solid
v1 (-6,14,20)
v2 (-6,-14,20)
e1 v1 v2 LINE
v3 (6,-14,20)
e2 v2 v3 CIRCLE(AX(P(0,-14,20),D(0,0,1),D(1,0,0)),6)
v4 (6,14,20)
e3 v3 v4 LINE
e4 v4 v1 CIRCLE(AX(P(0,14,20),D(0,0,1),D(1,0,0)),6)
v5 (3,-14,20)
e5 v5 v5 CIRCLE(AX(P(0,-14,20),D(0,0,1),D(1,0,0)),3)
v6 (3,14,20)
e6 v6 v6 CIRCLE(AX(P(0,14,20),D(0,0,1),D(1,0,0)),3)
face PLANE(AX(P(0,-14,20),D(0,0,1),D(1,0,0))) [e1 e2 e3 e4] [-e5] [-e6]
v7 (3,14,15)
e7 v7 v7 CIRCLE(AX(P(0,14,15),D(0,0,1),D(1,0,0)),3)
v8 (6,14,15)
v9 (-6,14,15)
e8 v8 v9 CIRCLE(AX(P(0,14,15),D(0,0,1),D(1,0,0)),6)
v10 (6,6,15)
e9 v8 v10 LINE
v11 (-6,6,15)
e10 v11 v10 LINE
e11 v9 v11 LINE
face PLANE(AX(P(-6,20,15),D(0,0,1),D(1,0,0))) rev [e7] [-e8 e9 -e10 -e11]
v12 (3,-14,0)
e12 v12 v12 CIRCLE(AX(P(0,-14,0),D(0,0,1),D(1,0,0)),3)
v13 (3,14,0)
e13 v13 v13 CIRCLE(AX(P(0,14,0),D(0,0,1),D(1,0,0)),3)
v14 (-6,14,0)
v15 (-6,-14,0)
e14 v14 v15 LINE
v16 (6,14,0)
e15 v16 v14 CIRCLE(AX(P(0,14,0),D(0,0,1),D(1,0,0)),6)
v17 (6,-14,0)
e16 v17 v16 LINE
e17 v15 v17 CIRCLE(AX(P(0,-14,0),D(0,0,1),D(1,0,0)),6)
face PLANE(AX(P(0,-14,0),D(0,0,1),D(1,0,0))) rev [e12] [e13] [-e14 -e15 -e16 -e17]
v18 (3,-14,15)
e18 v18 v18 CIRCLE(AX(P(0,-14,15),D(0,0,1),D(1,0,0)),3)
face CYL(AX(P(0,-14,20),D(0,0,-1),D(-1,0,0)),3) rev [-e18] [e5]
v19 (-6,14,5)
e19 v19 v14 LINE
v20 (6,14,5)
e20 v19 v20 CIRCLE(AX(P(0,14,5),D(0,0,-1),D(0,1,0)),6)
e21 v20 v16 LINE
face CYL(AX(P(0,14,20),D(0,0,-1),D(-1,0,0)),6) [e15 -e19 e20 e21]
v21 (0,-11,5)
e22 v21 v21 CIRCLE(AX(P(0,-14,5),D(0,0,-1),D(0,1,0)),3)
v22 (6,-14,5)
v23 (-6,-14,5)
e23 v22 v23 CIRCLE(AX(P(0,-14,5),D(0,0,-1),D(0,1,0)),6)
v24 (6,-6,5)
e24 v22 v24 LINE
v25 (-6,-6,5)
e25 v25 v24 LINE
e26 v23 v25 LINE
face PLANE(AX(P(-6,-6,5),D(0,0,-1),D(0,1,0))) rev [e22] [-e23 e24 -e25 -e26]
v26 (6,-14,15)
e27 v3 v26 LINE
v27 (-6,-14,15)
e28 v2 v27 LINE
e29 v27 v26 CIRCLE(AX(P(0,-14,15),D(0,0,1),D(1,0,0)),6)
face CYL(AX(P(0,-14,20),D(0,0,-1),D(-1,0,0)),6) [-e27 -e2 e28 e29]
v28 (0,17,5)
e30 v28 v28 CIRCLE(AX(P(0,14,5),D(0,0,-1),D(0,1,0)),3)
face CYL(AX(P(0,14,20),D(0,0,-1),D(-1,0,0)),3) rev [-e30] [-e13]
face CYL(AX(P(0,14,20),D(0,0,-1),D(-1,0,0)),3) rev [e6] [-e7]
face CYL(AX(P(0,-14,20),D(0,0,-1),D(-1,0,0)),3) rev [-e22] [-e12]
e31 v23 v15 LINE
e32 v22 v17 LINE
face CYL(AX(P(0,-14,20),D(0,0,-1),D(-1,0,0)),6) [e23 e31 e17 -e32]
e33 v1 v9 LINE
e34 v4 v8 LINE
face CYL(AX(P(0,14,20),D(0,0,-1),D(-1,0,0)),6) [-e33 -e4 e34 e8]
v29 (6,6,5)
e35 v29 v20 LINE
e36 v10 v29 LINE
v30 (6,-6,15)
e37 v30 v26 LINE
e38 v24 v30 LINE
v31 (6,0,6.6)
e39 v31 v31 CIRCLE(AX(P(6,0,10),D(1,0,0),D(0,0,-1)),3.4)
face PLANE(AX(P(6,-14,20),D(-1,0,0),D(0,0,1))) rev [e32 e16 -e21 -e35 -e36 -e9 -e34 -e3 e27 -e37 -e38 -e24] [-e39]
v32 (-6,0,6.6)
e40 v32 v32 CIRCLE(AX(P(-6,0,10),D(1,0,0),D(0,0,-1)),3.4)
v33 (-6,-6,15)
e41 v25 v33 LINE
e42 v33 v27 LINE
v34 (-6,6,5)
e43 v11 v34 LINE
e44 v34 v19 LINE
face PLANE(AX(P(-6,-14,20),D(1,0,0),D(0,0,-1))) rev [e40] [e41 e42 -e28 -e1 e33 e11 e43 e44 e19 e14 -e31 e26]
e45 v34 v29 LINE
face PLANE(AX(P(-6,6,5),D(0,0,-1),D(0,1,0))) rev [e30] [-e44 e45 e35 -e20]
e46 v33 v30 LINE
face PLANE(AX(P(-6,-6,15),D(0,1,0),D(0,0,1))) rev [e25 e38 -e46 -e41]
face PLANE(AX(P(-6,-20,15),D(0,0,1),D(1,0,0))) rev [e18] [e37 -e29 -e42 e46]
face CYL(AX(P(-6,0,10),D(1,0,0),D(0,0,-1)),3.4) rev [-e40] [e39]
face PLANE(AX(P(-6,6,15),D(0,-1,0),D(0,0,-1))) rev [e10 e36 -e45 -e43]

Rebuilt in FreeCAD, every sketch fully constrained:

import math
import FreeCAD as App
import Part
import Sketcher

V = App.Vector
Q = App.Units.Quantity


def add_polygon(sketch, points):
    """Adds a closed chain of lines whose ends are joined by coincident constraints."""
    first, n = sketch.GeometryCount, len(points)
    for a, b in zip(points, points[1:] + points[:1]):
        sketch.addGeometry(Part.LineSegment(App.Vector(*a, 0), App.Vector(*b, 0)), False)
    for i in range(n):
        sketch.addConstraint(Sketcher.Constraint("Coincident", first + i, 2, first + (i + 1) % n, 1))

doc = App.newDocument("Part")
params = doc.addObject("Spreadsheet::Sheet", "Params")
for row, (alias, value) in enumerate([
    ("sketch1_diameter", "6 mm"),
    ("sketch1_radius", "6 mm"),
    ("sketch1_height", "28 mm"),
    ("pad1_length", "20 mm"),
    ("sketch2_diameter", "6.8 mm"),
    ("sketch2_width", "14 mm"),
    ("sketch2_height", "10 mm"),
], start=1):
    params.set(f"A{row}", alias)
    params.set(f"B{row}", "=" + value)
    params.setAlias(f"B{row}", alias)

body = doc.addObject("PartDesign::Body", "Body")

# Sketch on XY plane
sketch1 = body.newObject("Sketcher::SketchObject", "Sketch")
sketch1.AttachmentSupport = (doc.getObject("XY_Plane"), [""])
sketch1.MapMode = "FlatFace"
sketch1.addGeometry([
    Part.LineSegment(V(-6, 14, 0), V(-6, -14, 0)),  # 0
    Part.ArcOfCircle(Part.Circle(V(0, -14, 0), V(0, 0, 1), 6), math.radians(180), math.radians(360)),  # 1
    Part.LineSegment(V(6, -14, 0), V(6, 14, 0)),  # 2
    Part.ArcOfCircle(Part.Circle(V(0, 14, 0), V(0, 0, 1), 6), math.radians(0), math.radians(180)),  # 3
    Part.Circle(V(0, -14, 0), V(0, 0, 1), 3),  # 4
    Part.Circle(V(0, 14, 0), V(0, 0, 1), 3),  # 5
], False)
sketch1.addConstraint([
    Sketcher.Constraint("Tangent", 0, 2, 1, 1),
    Sketcher.Constraint("Tangent", 1, 2, 2, 1),
    Sketcher.Constraint("Tangent", 2, 2, 3, 1),
    Sketcher.Constraint("Tangent", 3, 2, 0, 1),
    Sketcher.Constraint("Vertical", 0),
    Sketcher.Constraint("Vertical", 2),
    Sketcher.Constraint("Coincident", 4, 3, 1, 3),
    Sketcher.Constraint("Coincident", 5, 3, 3, 3),
    Sketcher.Constraint("Equal", 4, 5),
    Sketcher.Constraint("Symmetric", 1, 3, 3, 3, -1, 1),
    Sketcher.Constraint("Diameter", 4, Q("6 mm")),
    Sketcher.Constraint("Radius", 1, Q("6 mm")),
    Sketcher.Constraint("DistanceY", 0, 2, 0, 1, Q("28 mm")),
])
sketch1.setExpression("Constraints[10]", "Params.sketch1_diameter")
sketch1.setExpression("Constraints[11]", "Params.sketch1_radius")
sketch1.setExpression("Constraints[12]", "Params.sketch1_height")
pad1 = body.newObject("PartDesign::Pad", "Pad")
pad1.Profile = sketch1
pad1.setExpression("Length", "Params.pad1_length")

# Sketch on YZ plane
sketch2 = body.newObject("Sketcher::SketchObject", "Sketch001")
sketch2.AttachmentSupport = (doc.getObject("YZ_Plane"), [""])
sketch2.MapMode = "FlatFace"
sketch2.addGeometry(Part.Circle(V(0, 10, 0), V(0, 0, 1), 3.4), False)  # 0
add_polygon(sketch2, [(-6, 15), (-20, 15), (-20, 5), (-6, 5)])  # lines 1-4
add_polygon(sketch2, [(20, 15), (6, 15), (6, 5), (20, 5)])  # lines 5-8
sketch2.addConstraint([
    Sketcher.Constraint("Horizontal", 1),
    Sketcher.Constraint("Vertical", 2),
    Sketcher.Constraint("Horizontal", 3),
    Sketcher.Constraint("Vertical", 4),
    Sketcher.Constraint("Horizontal", 5),
    Sketcher.Constraint("Vertical", 6),
    Sketcher.Constraint("Horizontal", 7),
    Sketcher.Constraint("Vertical", 8),
    Sketcher.Constraint("Symmetric", 4, 2, 5, 2, -2),
    Sketcher.Constraint("Symmetric", 2, 2, 7, 2, -2),
    Sketcher.Constraint("PointOnObject", 0, 3, -2),
    Sketcher.Constraint("Diameter", 0, Q("6.8 mm")),
    Sketcher.Constraint("DistanceX", 1, 2, 1, 1, Q("14 mm")),
    Sketcher.Constraint("DistanceY", 2, 2, 2, 1, Q("10 mm")),
    Sketcher.Constraint("DistanceY", -1, 1, 0, 3, Q("10 mm")),
    Sketcher.Constraint("DistanceX", 1, 2, -1, 1, Q("20 mm")),
    Sketcher.Constraint("DistanceY", -1, 1, 1, 2, Q("15 mm")),
])
sketch2.setExpression("Constraints[19]", "Params.sketch2_diameter")
sketch2.setExpression("Constraints[20]", "Params.sketch2_width")
sketch2.setExpression("Constraints[21]", "Params.sketch2_height")
pocket1 = body.newObject("PartDesign::Pocket", "Pocket")
pocket1.Profile = sketch2
pocket1.Type = "ThroughAll"
pocket1.Midplane = True

doc.recompute()
